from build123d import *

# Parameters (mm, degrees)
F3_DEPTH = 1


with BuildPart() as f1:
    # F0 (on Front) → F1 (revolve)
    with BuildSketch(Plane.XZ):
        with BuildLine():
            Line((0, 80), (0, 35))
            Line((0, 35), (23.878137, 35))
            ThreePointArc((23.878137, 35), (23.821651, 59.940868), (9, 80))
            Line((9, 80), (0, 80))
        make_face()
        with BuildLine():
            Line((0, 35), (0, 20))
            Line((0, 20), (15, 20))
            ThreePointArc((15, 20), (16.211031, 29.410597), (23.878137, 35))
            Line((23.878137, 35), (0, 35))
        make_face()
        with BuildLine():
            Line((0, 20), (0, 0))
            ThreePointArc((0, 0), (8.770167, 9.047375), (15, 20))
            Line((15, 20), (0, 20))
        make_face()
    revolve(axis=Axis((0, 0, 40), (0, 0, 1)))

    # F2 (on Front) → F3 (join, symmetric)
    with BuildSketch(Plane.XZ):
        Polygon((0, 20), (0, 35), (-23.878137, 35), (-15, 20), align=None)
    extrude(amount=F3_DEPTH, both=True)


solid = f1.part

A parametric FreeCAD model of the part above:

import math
import FreeCAD as App
import Part
import Sketcher


def add_polygon(sketch, points):
    """Adds a closed chain of lines whose ends are joined by coincident constraints."""
    first, n = sketch.GeometryCount, len(points)
    for a, b in zip(points, points[1:] + points[:1]):
        sketch.addGeometry(Part.LineSegment(App.Vector(*a, 0), App.Vector(*b, 0)), False)
    for i in range(n):
        sketch.addConstraint(Sketcher.Constraint("Coincident", first + i, 2, first + (i + 1) % n, 1))

doc = App.newDocument("Part")
params = doc.addObject("Spreadsheet::Sheet", "Params")
for row, (alias, value) in enumerate([
    ("sketch1_radius", "12 mm"),
    ("sketch1_radius2", "40.000001 mm"),
    ("sketch1_width", "9 mm"),
    ("sketch1_height", "80 mm"),
    ("revolution_angle", "360 deg"),
    ("sketch2_width", "15 mm"),
    ("pad1_length", "2 mm"),
], start=1):
    params.set(f"A{row}", alias)
    params.set(f"B{row}", "=" + value)
    params.setAlias(f"B{row}", alias)

body = doc.addObject("PartDesign::Body", "Body")

sketch1 = body.newObject("Sketcher::SketchObject", "Sketch")
sketch1.AttachmentSupport = (doc.getObject("XZ_Plane"), [""])
sketch1.MapMode = "FlatFace"
sketch1.addGeometry(Part.LineSegment(App.Vector(0, 80, 0), App.Vector(0, 0, 0)), False)
sketch1.addGeometry(Part.ArcOfCircle(Part.Circle(App.Vector(-31, 39, 0), App.Vector(0, 0, 1), 50), math.radians(-51), math.radians(-22)), False)
sketch1.addGeometry(Part.ArcOfCircle(Part.Circle(App.Vector(27, 23, 0), App.Vector(0, 0, 1), 12), math.radians(103), math.radians(196)), False)
sketch1.addGeometry(Part.ArcOfCircle(Part.Circle(App.Vector(-14, 47, 0), App.Vector(0, 0, 1), 40), math.radians(-18), math.radians(55)), False)
sketch1.addGeometry(Part.LineSegment(App.Vector(9, 80, 0), App.Vector(0, 80, 0)), False)
sketch1.addConstraint(Sketcher.Constraint("Coincident", 0, 2, 1, 1))
sketch1.addConstraint(Sketcher.Constraint("Coincident", 1, 2, 2, 2))
sketch1.addConstraint(Sketcher.Constraint("Coincident", 2, 1, 3, 1))
sketch1.addConstraint(Sketcher.Constraint("Coincident", 3, 2, 4, 1))
sketch1.addConstraint(Sketcher.Constraint("Coincident", 4, 2, 0, 1))
sketch1.addConstraint(Sketcher.Constraint("Vertical", 0))
sketch1.addConstraint(Sketcher.Constraint("Horizontal", 4))
sketch1.addConstraint(Sketcher.Constraint("Coincident", 0, 2, -1, 1))
sketch1.addConstraint(Sketcher.Constraint("Radius", 2, 12.0))
sketch1.addConstraint(Sketcher.Constraint("Radius", 3, 40.000001))
sketch1.addConstraint(Sketcher.Constraint("DistanceX", 4, 2, 4, 1, 9.0))
sketch1.addConstraint(Sketcher.Constraint("DistanceY", 0, 2, 0, 1, 80.0))
sketch1.addConstraint(Sketcher.Constraint("DistanceX", -1, 1, 1, 2, 15.0))
sketch1.addConstraint(Sketcher.Constraint("DistanceY", -1, 1, 1, 2, 20.0))
sketch1.addConstraint(Sketcher.Constraint("DistanceY", -1, 1, 2, 1, 35.0))
sketch1.addConstraint(Sketcher.Constraint("Radius", 1, 49.999987))
sketch1.addConstraint(Sketcher.Constraint("DistanceX", 1, 3, 3, 3, 17.0734))
sketch1.setExpression("Constraints[8]", "Params.sketch1_radius")
sketch1.setExpression("Constraints[9]", "Params.sketch1_radius2")
sketch1.setExpression("Constraints[10]", "Params.sketch1_width")
sketch1.setExpression("Constraints[11]", "Params.sketch1_height")
revolution = body.newObject("PartDesign::Revolution", "Revolution")
revolution.Profile = sketch1
revolution.ReferenceAxis = (sketch1, ["V_Axis"])
revolution.setExpression("Angle", "Params.revolution_angle")

sketch2 = body.newObject("Sketcher::SketchObject", "Sketch001")
sketch2.AttachmentSupport = (doc.getObject("XZ_Plane"), [""])
sketch2.MapMode = "FlatFace"
add_polygon(sketch2, [(0, 20), (0, 35), (-24, 35), (-15, 20)])
sketch2.addConstraint(Sketcher.Constraint("Vertical", 0))
sketch2.addConstraint(Sketcher.Constraint("Horizontal", 1))
sketch2.addConstraint(Sketcher.Constraint("Horizontal", 3))
sketch2.addConstraint(Sketcher.Constraint("PointOnObject", 0, 2, -2))
sketch2.addConstraint(Sketcher.Constraint("Equal", 3, 0))
sketch2.addConstraint(Sketcher.Constraint("DistanceX", 3, 1, 3, 2, 15.0))
sketch2.addConstraint(Sketcher.Constraint("DistanceY", -1, 1, 0, 2, 35.0))
sketch2.addConstraint(Sketcher.Constraint("Distance", 2, 17.430471))
sketch2.setExpression("Constraints[9]", "Params.sketch2_width")
pad1 = body.newObject("PartDesign::Pad", "Pad")
pad1.Profile = sketch2
pad1.setExpression("Length", "Params.pad1_length")
pad1.Midplane = True

doc.recompute()
